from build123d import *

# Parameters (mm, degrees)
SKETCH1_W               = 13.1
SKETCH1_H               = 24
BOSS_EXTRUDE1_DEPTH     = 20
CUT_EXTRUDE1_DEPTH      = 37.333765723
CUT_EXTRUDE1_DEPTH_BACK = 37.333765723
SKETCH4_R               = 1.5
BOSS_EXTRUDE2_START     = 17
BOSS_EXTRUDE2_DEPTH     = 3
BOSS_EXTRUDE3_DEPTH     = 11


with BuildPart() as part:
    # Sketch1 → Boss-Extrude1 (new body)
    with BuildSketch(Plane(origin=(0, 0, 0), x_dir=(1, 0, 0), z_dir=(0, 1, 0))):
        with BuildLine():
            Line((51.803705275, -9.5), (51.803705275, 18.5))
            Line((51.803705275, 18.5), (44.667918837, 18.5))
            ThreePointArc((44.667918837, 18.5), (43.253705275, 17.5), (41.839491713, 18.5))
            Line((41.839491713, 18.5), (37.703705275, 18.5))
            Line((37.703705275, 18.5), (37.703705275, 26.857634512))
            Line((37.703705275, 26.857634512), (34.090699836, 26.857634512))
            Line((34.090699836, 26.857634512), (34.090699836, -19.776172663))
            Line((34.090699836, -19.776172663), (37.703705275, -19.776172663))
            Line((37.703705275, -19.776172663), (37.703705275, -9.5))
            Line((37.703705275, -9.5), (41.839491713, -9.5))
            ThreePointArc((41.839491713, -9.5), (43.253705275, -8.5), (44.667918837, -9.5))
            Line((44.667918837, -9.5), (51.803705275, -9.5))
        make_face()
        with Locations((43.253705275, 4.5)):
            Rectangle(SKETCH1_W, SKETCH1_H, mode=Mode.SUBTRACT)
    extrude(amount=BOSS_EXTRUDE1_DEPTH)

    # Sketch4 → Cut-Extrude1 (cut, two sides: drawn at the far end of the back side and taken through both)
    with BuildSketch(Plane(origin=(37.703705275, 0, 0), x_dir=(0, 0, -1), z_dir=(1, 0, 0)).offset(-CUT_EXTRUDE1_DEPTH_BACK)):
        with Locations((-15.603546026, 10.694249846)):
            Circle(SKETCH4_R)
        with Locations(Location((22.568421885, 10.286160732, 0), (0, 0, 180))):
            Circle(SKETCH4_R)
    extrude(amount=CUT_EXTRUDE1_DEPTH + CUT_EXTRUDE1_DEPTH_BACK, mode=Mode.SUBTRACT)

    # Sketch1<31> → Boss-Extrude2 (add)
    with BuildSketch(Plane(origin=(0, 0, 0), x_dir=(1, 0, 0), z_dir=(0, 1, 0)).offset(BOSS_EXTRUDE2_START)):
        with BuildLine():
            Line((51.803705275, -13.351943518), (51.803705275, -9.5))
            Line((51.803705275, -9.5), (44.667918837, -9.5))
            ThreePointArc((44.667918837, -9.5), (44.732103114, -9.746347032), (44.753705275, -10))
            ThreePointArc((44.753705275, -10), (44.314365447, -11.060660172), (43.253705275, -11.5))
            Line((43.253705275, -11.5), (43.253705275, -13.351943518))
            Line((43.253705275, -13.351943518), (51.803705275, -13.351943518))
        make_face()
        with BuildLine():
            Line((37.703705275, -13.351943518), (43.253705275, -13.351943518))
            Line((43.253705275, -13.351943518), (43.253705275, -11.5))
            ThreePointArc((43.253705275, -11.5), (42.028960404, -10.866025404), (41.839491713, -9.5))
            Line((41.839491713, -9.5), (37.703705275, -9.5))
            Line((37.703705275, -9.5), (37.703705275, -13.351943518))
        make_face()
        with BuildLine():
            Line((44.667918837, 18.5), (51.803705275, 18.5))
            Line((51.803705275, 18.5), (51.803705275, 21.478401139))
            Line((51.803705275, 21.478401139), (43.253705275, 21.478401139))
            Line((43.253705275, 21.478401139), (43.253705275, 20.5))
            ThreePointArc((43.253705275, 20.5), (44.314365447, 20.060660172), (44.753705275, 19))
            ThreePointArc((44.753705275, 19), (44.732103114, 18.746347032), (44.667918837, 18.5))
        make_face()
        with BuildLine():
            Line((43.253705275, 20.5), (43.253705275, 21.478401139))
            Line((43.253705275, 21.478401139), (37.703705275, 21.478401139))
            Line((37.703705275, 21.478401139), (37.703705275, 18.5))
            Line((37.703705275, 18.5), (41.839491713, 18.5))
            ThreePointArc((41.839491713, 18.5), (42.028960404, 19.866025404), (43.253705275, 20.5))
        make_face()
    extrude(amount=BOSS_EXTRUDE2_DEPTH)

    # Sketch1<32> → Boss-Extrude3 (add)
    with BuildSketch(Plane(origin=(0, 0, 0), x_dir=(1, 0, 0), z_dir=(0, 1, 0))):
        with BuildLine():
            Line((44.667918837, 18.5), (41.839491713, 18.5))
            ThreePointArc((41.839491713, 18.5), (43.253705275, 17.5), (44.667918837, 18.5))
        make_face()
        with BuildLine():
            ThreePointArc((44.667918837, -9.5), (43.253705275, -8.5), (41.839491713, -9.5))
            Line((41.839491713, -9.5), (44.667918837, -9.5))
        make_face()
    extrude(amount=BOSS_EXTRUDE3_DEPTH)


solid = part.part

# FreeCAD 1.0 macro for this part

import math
import FreeCAD as App
import Part
import Sketcher
from FreeCAD import Vector
Q = App.Units.Quantity


def add_polygon(sketch, points):
    """Adds a closed chain of lines whose ends are joined by coincident constraints."""
    first, n = sketch.GeometryCount, len(points)
    for a, b in zip(points, points[1:] + points[:1]):
        sketch.addGeometry(Part.LineSegment(App.Vector(*a, 0), App.Vector(*b, 0)), False)
    for i in range(n):
        sketch.addConstraint(Sketcher.Constraint("Coincident", first + i, 2, first + (i + 1) % n, 1))

doc = App.newDocument("Part")
body = doc.addObject("PartDesign::Body", "Body")

# Sketch on XZ plane
sketch1 = body.newObject("Sketcher::SketchObject", "Sketch")
sketch1.AttachmentSupport = (doc.getObject("XZ_Plane"), [""])
sketch1.MapMode = "FlatFace"
sketch1.addGeometry(Part.LineSegment(Vector(51.803705, 9.5, 0), Vector(51.803705, -18.5, 0)), False)  # 0
sketch1.addGeometry(Part.LineSegment(Vector(51.803705, -18.5, 0), Vector(44.667919, -18.5, 0)), False)  # 1
sketch1.addGeometry(Part.ArcOfCircle(Part.Circle(Vector(43.253705, -19, 0), Vector(0, 0, 1), 1.5), math.radians(19.471221), math.radians(160.528779)), False)  # 2
sketch1.addGeometry(Part.LineSegment(Vector(41.839492, -18.5, 0), Vector(37.703705, -18.5, 0)), False)  # 3
sketch1.addGeometry(Part.LineSegment(Vector(37.703705, -18.5, 0), Vector(37.703705, -26.857635, 0)), False)  # 4
sketch1.addGeometry(Part.LineSegment(Vector(37.703705, -26.857635, 0), Vector(34.0907, -26.857635, 0)), False)  # 5
sketch1.addGeometry(Part.LineSegment(Vector(34.0907, -26.857635, 0), Vector(34.0907, 19.776173, 0)), False)  # 6
sketch1.addGeometry(Part.LineSegment(Vector(34.0907, 19.776173, 0), Vector(37.703705, 19.776173, 0)), False)  # 7
sketch1.addGeometry(Part.LineSegment(Vector(37.703705, 19.776173, 0), Vector(37.703705, 9.5, 0)), False)  # 8
sketch1.addGeometry(Part.LineSegment(Vector(37.703705, 9.5, 0), Vector(41.839492, 9.5, 0)), False)  # 9
sketch1.addGeometry(Part.ArcOfCircle(Part.Circle(Vector(43.253705, 10, 0), Vector(0, 0, 1), 1.5), math.radians(-160.528779), math.radians(-19.471221)), False)  # 10
sketch1.addGeometry(Part.LineSegment(Vector(44.667919, 9.5, 0), Vector(51.803705, 9.5, 0)), False)  # 11
add_polygon(sketch1, [(49.803705, 7.5), (36.703705, 7.5), (36.703705, -16.5), (49.803705, -16.5)])  # lines 12-15
sketch1.addConstraint(Sketcher.Constraint("Coincident", 0, 2, 1, 1))
sketch1.addConstraint(Sketcher.Constraint("Coincident", 1, 2, 2, 1))
sketch1.addConstraint(Sketcher.Constraint("Coincident", 2, 2, 3, 1))
sketch1.addConstraint(Sketcher.Constraint("Coincident", 3, 2, 4, 1))
sketch1.addConstraint(Sketcher.Constraint("Coincident", 4, 2, 5, 1))
sketch1.addConstraint(Sketcher.Constraint("Coincident", 5, 2, 6, 1))
sketch1.addConstraint(Sketcher.Constraint("Coincident", 6, 2, 7, 1))
sketch1.addConstraint(Sketcher.Constraint("Coincident", 7, 2, 8, 1))
sketch1.addConstraint(Sketcher.Constraint("Coincident", 8, 2, 9, 1))
sketch1.addConstraint(Sketcher.Constraint("Coincident", 9, 2, 10, 1))
sketch1.addConstraint(Sketcher.Constraint("Coincident", 10, 2, 11, 1))
sketch1.addConstraint(Sketcher.Constraint("Coincident", 11, 2, 0, 1))
sketch1.addConstraint(Sketcher.Constraint("Vertical", 0))
sketch1.addConstraint(Sketcher.Constraint("Horizontal", 1))
sketch1.addConstraint(Sketcher.Constraint("Horizontal", 3))
sketch1.addConstraint(Sketcher.Constraint("Vertical", 4))
sketch1.addConstraint(Sketcher.Constraint("Horizontal", 5))
sketch1.addConstraint(Sketcher.Constraint("Vertical", 6))
sketch1.addConstraint(Sketcher.Constraint("Horizontal", 7))
sketch1.addConstraint(Sketcher.Constraint("Vertical", 8))
sketch1.addConstraint(Sketcher.Constraint("Horizontal", 9))
sketch1.addConstraint(Sketcher.Constraint("Horizontal", 11))
sketch1.addConstraint(Sketcher.Constraint("Horizontal", 12))
sketch1.addConstraint(Sketcher.Constraint("Vertical", 13))
sketch1.addConstraint(Sketcher.Constraint("Horizontal", 14))
sketch1.addConstraint(Sketcher.Constraint("Vertical", 15))
sketch1.addConstraint(Sketcher.Constraint("Equal", 2, 10))
sketch1.addConstraint(Sketcher.Constraint("Horizontal", 1, 2, 2, 2))
sketch1.addConstraint(Sketcher.Constraint("Horizontal", 9, 2, 10, 2))
sketch1.addConstraint(Sketcher.Constraint("Vertical", 2, 3, 10, 3))
sketch1.addConstraint(Sketcher.Constraint("Vertical", 4, 2, 7, 2))
sketch1.addConstraint(Sketcher.Constraint("Vertical", 2, 2, 9, 2))
sketch1.addConstraint(Sketcher.Constraint("Radius", 2, Q("1.5 mm")))
sketch1.addConstraint(Sketcher.Constraint("DistanceY", 0, 2, 0, 1, Q("28 mm")))
sketch1.addConstraint(Sketcher.Constraint("DistanceY", 13, 2, 13, 1, Q("24 mm")))
sketch1.addConstraint(Sketcher.Constraint("DistanceX", 12, 2, 12, 1, Q("13.1 mm")))
sketch1.addConstraint(Sketcher.Constraint("DistanceY", 2, 3, -1, 1, Q("19 mm")))
sketch1.addConstraint(Sketcher.Constraint("DistanceY", -1, 1, 10, 3, Q("10 mm")))
sketch1.addConstraint(Sketcher.Constraint("DistanceX", 12, 2, 8, 2, Q("1 mm")))
sketch1.addConstraint(Sketcher.Constraint("DistanceY", 12, 2, 8, 2, Q("2 mm")))
sketch1.addConstraint(Sketcher.Constraint("DistanceX", 14, 2, 0, 2, Q("2 mm")))
sketch1.addConstraint(Sketcher.Constraint("DistanceX", 2, 3, 0, 2, Q("8.55 mm")))
sketch1.addConstraint(Sketcher.Constraint("DistanceX", -1, 1, 5, 2, Q("34.0907 mm")))
sketch1.addConstraint(Sketcher.Constraint("DistanceX", 5, 2, 5, 1, Q("3.613005 mm")))
sketch1.addConstraint(Sketcher.Constraint("DistanceY", 4, 2, 4, 1, Q("8.357635 mm")))
sketch1.addConstraint(Sketcher.Constraint("DistanceY", 6, 1, 6, 2, Q("46.633807 mm")))
pad1 = body.newObject("PartDesign::Pad", "Pad")
pad1.Profile = sketch1
pad1.Length = 20
pad1.Reversed = True

# Sketch on YZ plane
sketch2 = body.newObject("Sketcher::SketchObject", "Sketch001")
sketch2.AttachmentSupport = (doc.getObject("YZ_Plane"), [""])
sketch2.MapMode = "FlatFace"
sketch2.AttachmentOffset = App.Placement(Vector(0, 0, 37.703705), App.Rotation())
sketch2.addGeometry(Part.Circle(Vector(10.69425, 15.603546, 0), Vector(0, 0, 1), 1.5), False)
sketch2.addGeometry(Part.Circle(Vector(10.286161, -22.568422, 0), Vector(0, 0, 1), 1.5), False)
sketch2.addConstraint(Sketcher.Constraint("Equal", 0, 1))
sketch2.addConstraint(Sketcher.Constraint("Diameter", 0, Q("3 mm")))
sketch2.addConstraint(Sketcher.Constraint("DistanceX", -1, 1, 0, 3, Q("10.69425 mm")))
sketch2.addConstraint(Sketcher.Constraint("DistanceX", -1, 1, 1, 3, Q("10.286161 mm")))
sketch2.addConstraint(Sketcher.Constraint("DistanceY", 1, 3, -1, 1, Q("22.568422 mm")))
sketch2.addConstraint(Sketcher.Constraint("DistanceY", -1, 1, 0, 3, Q("15.603546 mm")))
pocket1 = body.newObject("PartDesign::Pocket", "Pocket")
pocket1.Profile = sketch2
pocket1.Type = "ThroughAll"
pocket1.Midplane = True

# Sketch on XZ plane
sketch3 = body.newObject("Sketcher::SketchObject", "Sketch002")
sketch3.AttachmentSupport = (doc.getObject("XZ_Plane"), [""])
sketch3.MapMode = "FlatFace"
sketch3.AttachmentOffset = App.Placement(Vector(0, 0, -17), App.Rotation())
sketch3.addGeometry(Part.LineSegment(Vector(51.803705, 13.351944, 0), Vector(51.803705, 9.5, 0)), False)
sketch3.addGeometry(Part.LineSegment(Vector(51.803705, 9.5, 0), Vector(44.667919, 9.5, 0)), False)
sketch3.addGeometry(Part.ArcOfCircle(Part.Circle(Vector(43.253705, 10, 0), Vector(0, 0, 1), 1.5), math.radians(-19.471221), math.radians(0)), False)
sketch3.addGeometry(Part.ArcOfCircle(Part.Circle(Vector(43.253705, 10, 0), Vector(0, 0, 1), 1.5), math.radians(0), math.radians(90)), False)
sketch3.addGeometry(Part.ArcOfCircle(Part.Circle(Vector(43.253705, 10, 0), Vector(0, 0, 1), 1.5), math.radians(90), math.radians(199.471221)), False)
sketch3.addGeometry(Part.LineSegment(Vector(41.839492, 9.5, 0), Vector(37.703705, 9.5, 0)), False)
sketch3.addGeometry(Part.LineSegment(Vector(37.703705, 9.5, 0), Vector(37.703705, 13.351944, 0)), False)
sketch3.addGeometry(Part.LineSegment(Vector(37.703705, 13.351944, 0), Vector(51.803705, 13.351944, 0)), False)
sketch3.addGeometry(Part.LineSegment(Vector(44.667919, -18.5, 0), Vector(51.803705, -18.5, 0)), False)
sketch3.addGeometry(Part.LineSegment(Vector(51.803705, -18.5, 0), Vector(51.803705, -21.478401, 0)), False)
sketch3.addGeometry(Part.LineSegment(Vector(51.803705, -21.478401, 0), Vector(37.703705, -21.478401, 0)), False)
sketch3.addGeometry(Part.LineSegment(Vector(37.703705, -21.478401, 0), Vector(37.703705, -18.5, 0)), False)
sketch3.addGeometry(Part.LineSegment(Vector(37.703705, -18.5, 0), Vector(41.839492, -18.5, 0)), False)
sketch3.addGeometry(Part.ArcOfCircle(Part.Circle(Vector(43.253705, -19, 0), Vector(0, 0, 1), 1.5), math.radians(160.528779), math.radians(270)), False)
sketch3.addGeometry(Part.ArcOfCircle(Part.Circle(Vector(43.253705, -19, 0), Vector(0, 0, 1), 1.5), math.radians(-90), math.radians(0)), False)
sketch3.addGeometry(Part.ArcOfCircle(Part.Circle(Vector(43.253705, -19, 0), Vector(0, 0, 1), 1.5), math.radians(0), math.radians(19.471221)), False)
sketch3.addConstraint(Sketcher.Constraint("Coincident", 0, 2, 1, 1))
sketch3.addConstraint(Sketcher.Constraint("Coincident", 1, 2, 2, 1))
sketch3.addConstraint(Sketcher.Constraint("Tangent", 2, 2, 3, 1))
sketch3.addConstraint(Sketcher.Constraint("Tangent", 3, 2, 4, 1))
sketch3.addConstraint(Sketcher.Constraint("Coincident", 4, 2, 5, 1))
sketch3.addConstraint(Sketcher.Constraint("Coincident", 5, 2, 6, 1))
sketch3.addConstraint(Sketcher.Constraint("Coincident", 6, 2, 7, 1))
sketch3.addConstraint(Sketcher.Constraint("Coincident", 7, 2, 0, 1))
sketch3.addConstraint(Sketcher.Constraint("Coincident", 8, 2, 9, 1))
sketch3.addConstraint(Sketcher.Constraint("Coincident", 9, 2, 10, 1))
sketch3.addConstraint(Sketcher.Constraint("Coincident", 10, 2, 11, 1))
sketch3.addConstraint(Sketcher.Constraint("Coincident", 11, 2, 12, 1))
sketch3.addConstraint(Sketcher.Constraint("Coincident", 12, 2, 13, 1))
sketch3.addConstraint(Sketcher.Constraint("Tangent", 13, 2, 14, 1))
sketch3.addConstraint(Sketcher.Constraint("Tangent", 14, 2, 15, 1))
sketch3.addConstraint(Sketcher.Constraint("Coincident", 15, 2, 8, 1))
sketch3.addConstraint(Sketcher.Constraint("Vertical", 0))
sketch3.addConstraint(Sketcher.Constraint("Horizontal", 1))
sketch3.addConstraint(Sketcher.Constraint("Horizontal", 5))
sketch3.addConstraint(Sketcher.Constraint("Vertical", 6))
sketch3.addConstraint(Sketcher.Constraint("Horizontal", 7))
sketch3.addConstraint(Sketcher.Constraint("Horizontal", 8))
sketch3.addConstraint(Sketcher.Constraint("Vertical", 9))
sketch3.addConstraint(Sketcher.Constraint("Horizontal", 10))
sketch3.addConstraint(Sketcher.Constraint("Vertical", 11))
sketch3.addConstraint(Sketcher.Constraint("Horizontal", 12))
sketch3.addConstraint(Sketcher.Constraint("Coincident", 4, 3, 2, 3))
sketch3.addConstraint(Sketcher.Constraint("Coincident", 15, 3, 13, 3))
sketch3.addConstraint(Sketcher.Constraint("Equal", 4, 13))
sketch3.addConstraint(Sketcher.Constraint("Horizontal", 4, 3, 2, 2))
sketch3.addConstraint(Sketcher.Constraint("Horizontal", 1, 2, 4, 2))
sketch3.addConstraint(Sketcher.Constraint("Horizontal", 8, 2, 11, 2))
sketch3.addConstraint(Sketcher.Constraint("Horizontal", 15, 3, 14, 2))
sketch3.addConstraint(Sketcher.Constraint("Vertical", 4, 3, 13, 3))
sketch3.addConstraint(Sketcher.Constraint("Vertical", 15, 3, 3, 2))
sketch3.addConstraint(Sketcher.Constraint("Vertical", 7, 2, 8, 2))
sketch3.addConstraint(Sketcher.Constraint("Vertical", 6, 2, 10, 2))
sketch3.addConstraint(Sketcher.Constraint("Vertical", 4, 2, 12, 2))
sketch3.addConstraint(Sketcher.Constraint("Vertical", 3, 2, 13, 2))
sketch3.addConstraint(Sketcher.Constraint("Radius", 2, Q("1.5 mm")))
sketch3.addConstraint(Sketcher.Constraint("DistanceX", 7, 1, 7, 2, Q("14.1 mm")))
sketch3.addConstraint(Sketcher.Constraint("DistanceY", -1, 1, 2, 3, Q("10 mm")))
sketch3.addConstraint(Sketcher.Constraint("DistanceY", 13, 3, -1, 1, Q("19 mm")))
sketch3.addConstraint(Sketcher.Constraint("DistanceY", 1, 2, 3, 2, Q("2 mm")))
sketch3.addConstraint(Sketcher.Constraint("DistanceX", 3, 3, 0, 2, Q("8.55 mm")))
sketch3.addConstraint(Sketcher.Constraint("DistanceY", 9, 2, 9, 1, Q("2.978401 mm")))
sketch3.addConstraint(Sketcher.Constraint("DistanceY", 0, 2, 0, 1, Q("3.851944 mm")))
sketch3.addConstraint(Sketcher.Constraint("DistanceX", -1, 1, 1, 2, Q("44.667919 mm")))
pad2 = body.newObject("PartDesign::Pad", "Pad001")
pad2.Profile = sketch3
pad2.Length = 3
pad2.Reversed = True

# Sketch on XZ plane
sketch4 = body.newObject("Sketcher::SketchObject", "Sketch003")
sketch4.AttachmentSupport = (doc.getObject("XZ_Plane"), [""])
sketch4.MapMode = "FlatFace"
sketch4.addGeometry(Part.LineSegment(Vector(44.667919, -18.5, 0), Vector(41.839492, -18.5, 0)), False)
sketch4.addGeometry(Part.ArcOfCircle(Part.Circle(Vector(43.253705, -19, 0), Vector(0, 0, 1), 1.5), math.radians(19.471221), math.radians(160.528779)), False)
sketch4.addGeometry(Part.ArcOfCircle(Part.Circle(Vector(43.253705, 10, 0), Vector(0, 0, 1), 1.5), math.radians(-160.528779), math.radians(-19.471221)), False)
sketch4.addGeometry(Part.LineSegment(Vector(41.839492, 9.5, 0), Vector(44.667919, 9.5, 0)), False)
sketch4.addConstraint(Sketcher.Constraint("Coincident", 0, 1, 1, 1))
sketch4.addConstraint(Sketcher.Constraint("Coincident", 1, 2, 0, 2))
sketch4.addConstraint(Sketcher.Constraint("Coincident", 2, 1, 3, 1))
sketch4.addConstraint(Sketcher.Constraint("Coincident", 3, 2, 2, 2))
sketch4.addConstraint(Sketcher.Constraint("Horizontal", 0))
sketch4.addConstraint(Sketcher.Constraint("Horizontal", 3))
sketch4.addConstraint(Sketcher.Constraint("Equal", 1, 2))
sketch4.addConstraint(Sketcher.Constraint("Vertical", 1, 3, 2, 3))
sketch4.addConstraint(Sketcher.Constraint("Vertical", 1, 2, 2, 1))
sketch4.addConstraint(Sketcher.Constraint("Radius", 1, Q("1.5 mm")))
sketch4.addConstraint(Sketcher.Constraint("DistanceY", 1, 3, -1, 1, Q("19 mm")))
sketch4.addConstraint(Sketcher.Constraint("DistanceY", -1, 1, 2, 3, Q("10 mm")))
sketch4.addConstraint(Sketcher.Constraint("DistanceY", 1, 2, 2, 1, Q("28 mm")))
sketch4.addConstraint(Sketcher.Constraint("DistanceX", -1, 1, 0, 1, Q("44.667919 mm")))
pad3 = body.newObject("PartDesign::Pad", "Pad002")
pad3.Profile = sketch4
pad3.Length = 11
pad3.Reversed = True

doc.recompute()
